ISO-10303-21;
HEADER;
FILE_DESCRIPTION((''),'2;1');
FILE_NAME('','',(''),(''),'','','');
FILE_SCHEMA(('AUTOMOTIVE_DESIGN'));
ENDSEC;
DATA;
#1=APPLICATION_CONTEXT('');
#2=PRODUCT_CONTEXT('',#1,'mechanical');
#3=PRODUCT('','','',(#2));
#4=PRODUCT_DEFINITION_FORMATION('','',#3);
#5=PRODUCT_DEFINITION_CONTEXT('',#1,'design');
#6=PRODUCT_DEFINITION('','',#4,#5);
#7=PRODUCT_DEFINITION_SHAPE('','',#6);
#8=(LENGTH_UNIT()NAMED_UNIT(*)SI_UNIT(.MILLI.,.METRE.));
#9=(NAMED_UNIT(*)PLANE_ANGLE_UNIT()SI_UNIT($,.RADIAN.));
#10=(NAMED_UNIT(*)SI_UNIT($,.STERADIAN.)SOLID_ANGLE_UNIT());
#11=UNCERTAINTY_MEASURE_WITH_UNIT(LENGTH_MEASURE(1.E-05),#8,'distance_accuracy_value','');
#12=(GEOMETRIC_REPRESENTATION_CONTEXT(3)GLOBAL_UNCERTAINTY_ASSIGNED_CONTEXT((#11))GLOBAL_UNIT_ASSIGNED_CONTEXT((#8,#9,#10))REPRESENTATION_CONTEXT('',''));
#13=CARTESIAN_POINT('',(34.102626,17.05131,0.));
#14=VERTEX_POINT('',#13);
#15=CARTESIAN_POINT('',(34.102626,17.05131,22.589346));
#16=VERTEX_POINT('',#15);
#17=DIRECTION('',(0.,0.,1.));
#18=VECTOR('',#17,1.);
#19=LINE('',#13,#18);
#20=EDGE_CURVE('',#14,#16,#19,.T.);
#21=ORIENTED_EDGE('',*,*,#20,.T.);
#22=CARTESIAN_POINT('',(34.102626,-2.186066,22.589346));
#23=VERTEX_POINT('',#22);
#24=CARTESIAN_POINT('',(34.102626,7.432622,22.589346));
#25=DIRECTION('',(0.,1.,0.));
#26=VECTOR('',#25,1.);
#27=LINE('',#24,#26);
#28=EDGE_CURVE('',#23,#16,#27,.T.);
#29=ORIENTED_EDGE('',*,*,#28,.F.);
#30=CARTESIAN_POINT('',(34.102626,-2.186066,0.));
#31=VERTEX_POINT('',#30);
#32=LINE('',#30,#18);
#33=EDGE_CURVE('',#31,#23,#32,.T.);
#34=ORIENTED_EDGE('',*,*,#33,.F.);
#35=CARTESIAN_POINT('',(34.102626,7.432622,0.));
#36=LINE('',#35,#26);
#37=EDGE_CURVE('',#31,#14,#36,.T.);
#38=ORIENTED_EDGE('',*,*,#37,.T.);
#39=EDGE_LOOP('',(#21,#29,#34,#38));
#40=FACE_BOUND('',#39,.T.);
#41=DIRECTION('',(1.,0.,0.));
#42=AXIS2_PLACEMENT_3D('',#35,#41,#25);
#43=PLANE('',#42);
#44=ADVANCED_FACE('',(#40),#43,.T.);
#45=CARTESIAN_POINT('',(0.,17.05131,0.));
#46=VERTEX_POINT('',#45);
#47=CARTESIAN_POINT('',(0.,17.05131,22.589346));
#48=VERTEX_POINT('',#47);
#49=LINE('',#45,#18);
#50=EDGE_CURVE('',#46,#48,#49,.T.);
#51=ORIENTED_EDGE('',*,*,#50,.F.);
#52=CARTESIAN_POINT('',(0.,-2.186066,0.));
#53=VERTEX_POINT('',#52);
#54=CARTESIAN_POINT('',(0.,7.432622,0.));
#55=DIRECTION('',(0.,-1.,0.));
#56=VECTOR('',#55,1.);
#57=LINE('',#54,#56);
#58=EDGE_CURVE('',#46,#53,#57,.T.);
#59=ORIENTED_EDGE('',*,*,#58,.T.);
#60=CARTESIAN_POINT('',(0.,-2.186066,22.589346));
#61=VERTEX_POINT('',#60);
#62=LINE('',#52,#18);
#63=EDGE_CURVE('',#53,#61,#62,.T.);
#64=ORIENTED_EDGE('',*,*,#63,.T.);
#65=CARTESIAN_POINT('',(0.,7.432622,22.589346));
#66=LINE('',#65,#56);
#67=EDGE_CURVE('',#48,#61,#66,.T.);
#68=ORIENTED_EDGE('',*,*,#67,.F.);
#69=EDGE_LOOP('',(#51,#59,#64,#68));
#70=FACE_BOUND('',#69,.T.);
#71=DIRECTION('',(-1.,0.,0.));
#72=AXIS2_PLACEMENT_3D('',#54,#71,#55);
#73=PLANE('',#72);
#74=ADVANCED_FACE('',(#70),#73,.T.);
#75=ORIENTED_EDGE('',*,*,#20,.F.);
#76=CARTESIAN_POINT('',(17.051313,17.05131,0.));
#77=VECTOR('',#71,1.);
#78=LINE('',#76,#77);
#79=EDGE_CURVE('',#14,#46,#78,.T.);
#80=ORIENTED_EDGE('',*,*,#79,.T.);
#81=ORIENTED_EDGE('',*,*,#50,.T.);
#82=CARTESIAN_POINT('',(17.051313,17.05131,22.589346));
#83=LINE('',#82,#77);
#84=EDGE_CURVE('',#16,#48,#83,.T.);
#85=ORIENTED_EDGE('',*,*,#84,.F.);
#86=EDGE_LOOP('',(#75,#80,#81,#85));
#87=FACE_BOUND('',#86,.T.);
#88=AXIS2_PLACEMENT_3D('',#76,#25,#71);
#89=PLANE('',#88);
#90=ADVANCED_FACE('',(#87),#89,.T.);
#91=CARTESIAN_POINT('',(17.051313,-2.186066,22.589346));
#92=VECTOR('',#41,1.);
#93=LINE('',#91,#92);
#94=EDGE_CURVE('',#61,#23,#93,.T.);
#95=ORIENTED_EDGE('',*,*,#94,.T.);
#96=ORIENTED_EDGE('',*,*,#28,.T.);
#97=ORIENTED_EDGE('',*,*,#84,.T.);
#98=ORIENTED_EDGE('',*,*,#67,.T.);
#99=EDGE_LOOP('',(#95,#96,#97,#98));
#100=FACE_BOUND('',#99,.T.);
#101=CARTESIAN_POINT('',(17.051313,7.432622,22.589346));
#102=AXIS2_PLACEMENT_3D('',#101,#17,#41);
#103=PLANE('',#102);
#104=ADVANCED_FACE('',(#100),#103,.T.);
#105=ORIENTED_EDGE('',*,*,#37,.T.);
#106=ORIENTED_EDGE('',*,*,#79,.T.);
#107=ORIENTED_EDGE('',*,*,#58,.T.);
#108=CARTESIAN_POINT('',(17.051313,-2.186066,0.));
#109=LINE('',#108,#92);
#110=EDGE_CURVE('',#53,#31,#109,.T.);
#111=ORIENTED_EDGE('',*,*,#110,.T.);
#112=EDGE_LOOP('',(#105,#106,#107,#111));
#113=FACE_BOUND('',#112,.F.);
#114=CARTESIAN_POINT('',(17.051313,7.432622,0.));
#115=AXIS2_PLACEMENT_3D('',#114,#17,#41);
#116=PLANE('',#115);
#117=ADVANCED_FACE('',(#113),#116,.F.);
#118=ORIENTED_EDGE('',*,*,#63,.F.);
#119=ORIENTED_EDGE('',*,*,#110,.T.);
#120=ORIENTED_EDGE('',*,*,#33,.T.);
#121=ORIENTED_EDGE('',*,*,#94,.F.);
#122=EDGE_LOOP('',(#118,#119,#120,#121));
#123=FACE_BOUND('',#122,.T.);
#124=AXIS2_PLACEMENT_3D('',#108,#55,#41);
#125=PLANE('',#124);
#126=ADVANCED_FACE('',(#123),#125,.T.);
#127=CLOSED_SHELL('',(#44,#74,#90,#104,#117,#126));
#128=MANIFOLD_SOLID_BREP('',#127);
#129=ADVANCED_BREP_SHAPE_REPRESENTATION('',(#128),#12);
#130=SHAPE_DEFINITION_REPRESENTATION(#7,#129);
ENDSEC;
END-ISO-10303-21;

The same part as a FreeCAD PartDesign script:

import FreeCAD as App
import Part
import Sketcher

doc = App.newDocument("Part")
body = doc.addObject("PartDesign::Body", "Body")

# Sketch on XY plane
sketch1 = body.newObject("Sketcher::SketchObject", "Sketch")
sketch1.AttachmentSupport = (doc.getObject("XY_Plane"), [""])
sketch1.MapMode = "FlatFace"
sketch1.addGeometry([
    Part.LineSegment(App.Vector(0, 17, 0), App.Vector(0, -2, 0)),
    Part.LineSegment(App.Vector(0, -2, 0), App.Vector(34, -2, 0)),
    Part.LineSegment(App.Vector(34, -2, 0), App.Vector(34, 17, 0)),
    Part.LineSegment(App.Vector(34, 17, 0), App.Vector(0, 17, 0)),
], False)
sketch1.addConstraint([
    Sketcher.Constraint("Coincident", 0, 2, 1, 1),
    Sketcher.Constraint("Coincident", 1, 2, 2, 1),
    Sketcher.Constraint("Coincident", 2, 2, 3, 1),
    Sketcher.Constraint("Coincident", 3, 2, 0, 1),
    Sketcher.Constraint("Vertical", 0),
    Sketcher.Constraint("Horizontal", 1),
    Sketcher.Constraint("Vertical", 2),
    Sketcher.Constraint("Horizontal", 3),
    Sketcher.Constraint("PointOnObject", 0, 2, -2),
    Sketcher.Constraint("DistanceX", 1, 1, 1, 2, 34.102626),
    Sketcher.Constraint("DistanceY", 0, 2, 0, 1, 19.237377),
    Sketcher.Constraint("DistanceY", -1, 1, 2, 2, 17.05131),
])

# Sketch on XZ plane
sketch2 = body.newObject("Sketcher::SketchObject", "Sketch001")
sketch2.AttachmentSupport = (doc.getObject("XZ_Plane"), [""])
sketch2.MapMode = "FlatFace"
sketch2.addGeometry(Part.LineSegment(App.Vector(0, 0, 0), App.Vector(0, 23, 0)), False)
sketch2.addConstraint([
    Sketcher.Constraint("Vertical", 0),
    Sketcher.Constraint("Coincident", 0, 1, -1, 1),
    Sketcher.Constraint("DistanceY", 0, 1, 0, 2, 22.589346),
])
doc.recompute()

additivepipe = body.newObject("PartDesign::AdditivePipe", "AdditivePipe")
additivepipe.Profile = sketch1
additivepipe.Spine = (sketch2, ["Edge1"])

doc.recompute()
